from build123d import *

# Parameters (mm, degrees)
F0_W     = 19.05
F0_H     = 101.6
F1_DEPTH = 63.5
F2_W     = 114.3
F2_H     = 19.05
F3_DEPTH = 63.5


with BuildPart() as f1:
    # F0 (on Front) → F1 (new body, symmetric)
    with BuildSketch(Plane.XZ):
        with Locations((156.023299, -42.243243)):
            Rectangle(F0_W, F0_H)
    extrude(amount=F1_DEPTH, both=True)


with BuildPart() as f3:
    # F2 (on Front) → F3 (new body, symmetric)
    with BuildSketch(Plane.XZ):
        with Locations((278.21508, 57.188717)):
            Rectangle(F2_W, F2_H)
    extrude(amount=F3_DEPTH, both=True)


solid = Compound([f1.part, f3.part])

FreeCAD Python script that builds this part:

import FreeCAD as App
import Part
import Sketcher
from FreeCAD import Vector
Q = App.Units.Quantity

doc = App.newDocument("Part")
body = doc.addObject("PartDesign::Body", "Body")

sketch1 = body.newObject("Sketcher::SketchObject", "Sketch")
sketch1.AttachmentSupport = (doc.getObject("XZ_Plane"), [""])
sketch1.MapMode = "FlatFace"
sketch1.addGeometry(Part.LineSegment(Vector(146, 9, 0), Vector(146, -93, 0)), False)
sketch1.addGeometry(Part.LineSegment(Vector(146, -93, 0), Vector(166, -93, 0)), False)
sketch1.addGeometry(Part.LineSegment(Vector(166, -93, 0), Vector(166, 9, 0)), False)
sketch1.addGeometry(Part.LineSegment(Vector(166, 9, 0), Vector(146, 9, 0)), False)
sketch1.addConstraint(Sketcher.Constraint("Coincident", 0, 2, 1, 1))
sketch1.addConstraint(Sketcher.Constraint("Coincident", 1, 2, 2, 1))
sketch1.addConstraint(Sketcher.Constraint("Coincident", 2, 2, 3, 1))
sketch1.addConstraint(Sketcher.Constraint("Coincident", 3, 2, 0, 1))
sketch1.addConstraint(Sketcher.Constraint("Vertical", 0))
sketch1.addConstraint(Sketcher.Constraint("Horizontal", 1))
sketch1.addConstraint(Sketcher.Constraint("Vertical", 2))
sketch1.addConstraint(Sketcher.Constraint("Horizontal", 3))
sketch1.addConstraint(Sketcher.Constraint("DistanceY", 0, 2, 0, 1, Q("4 in")))
sketch1.addConstraint(Sketcher.Constraint("DistanceX", 1, 1, 1, 2, Q("0.75 in")))
sketch1.addConstraint(Sketcher.Constraint("DistanceX", -1, 1, 0, 2, Q("146.498299 mm")))
sketch1.addConstraint(Sketcher.Constraint("DistanceY", 0, 2, -1, 1, Q("93.043243 mm")))
pad1 = body.newObject("PartDesign::Pad", "Pad")
pad1.Profile = sketch1
pad1.Length = Q("5 in")
pad1.Midplane = True
body2 = doc.addObject("PartDesign::Body", "Body001")

sketch2 = body2.newObject("Sketcher::SketchObject", "Sketch001")
sketch2.AttachmentSupport = (doc.getObject("XZ_Plane001"), [""])
sketch2.MapMode = "FlatFace"
sketch2.addGeometry(Part.LineSegment(Vector(221, 67, 0), Vector(221, 48, 0)), False)
sketch2.addGeometry(Part.LineSegment(Vector(221, 48, 0), Vector(335, 48, 0)), False)
sketch2.addGeometry(Part.LineSegment(Vector(335, 48, 0), Vector(335, 67, 0)), False)
sketch2.addGeometry(Part.LineSegment(Vector(335, 67, 0), Vector(221, 67, 0)), False)
sketch2.addConstraint(Sketcher.Constraint("Coincident", 0, 2, 1, 1))
sketch2.addConstraint(Sketcher.Constraint("Coincident", 1, 2, 2, 1))
sketch2.addConstraint(Sketcher.Constraint("Coincident", 2, 2, 3, 1))
sketch2.addConstraint(Sketcher.Constraint("Coincident", 3, 2, 0, 1))
sketch2.addConstraint(Sketcher.Constraint("Vertical", 0))
sketch2.addConstraint(Sketcher.Constraint("Horizontal", 1))
sketch2.addConstraint(Sketcher.Constraint("Vertical", 2))
sketch2.addConstraint(Sketcher.Constraint("Horizontal", 3))
sketch2.addConstraint(Sketcher.Constraint("DistanceX", 1, 1, 1, 2, Q("4.5 in")))
sketch2.addConstraint(Sketcher.Constraint("DistanceY", 0, 2, 0, 1, Q("0.75 in")))
sketch2.addConstraint(Sketcher.Constraint("DistanceX", -1, 1, 0, 2, Q("221.06508 mm")))
sketch2.addConstraint(Sketcher.Constraint("DistanceY", -1, 1, 0, 2, Q("47.663717 mm")))
pad2 = body2.newObject("PartDesign::Pad", "Pad001")
pad2.Profile = sketch2
pad2.Length = Q("5 in")
pad2.Midplane = True

doc.recompute()
